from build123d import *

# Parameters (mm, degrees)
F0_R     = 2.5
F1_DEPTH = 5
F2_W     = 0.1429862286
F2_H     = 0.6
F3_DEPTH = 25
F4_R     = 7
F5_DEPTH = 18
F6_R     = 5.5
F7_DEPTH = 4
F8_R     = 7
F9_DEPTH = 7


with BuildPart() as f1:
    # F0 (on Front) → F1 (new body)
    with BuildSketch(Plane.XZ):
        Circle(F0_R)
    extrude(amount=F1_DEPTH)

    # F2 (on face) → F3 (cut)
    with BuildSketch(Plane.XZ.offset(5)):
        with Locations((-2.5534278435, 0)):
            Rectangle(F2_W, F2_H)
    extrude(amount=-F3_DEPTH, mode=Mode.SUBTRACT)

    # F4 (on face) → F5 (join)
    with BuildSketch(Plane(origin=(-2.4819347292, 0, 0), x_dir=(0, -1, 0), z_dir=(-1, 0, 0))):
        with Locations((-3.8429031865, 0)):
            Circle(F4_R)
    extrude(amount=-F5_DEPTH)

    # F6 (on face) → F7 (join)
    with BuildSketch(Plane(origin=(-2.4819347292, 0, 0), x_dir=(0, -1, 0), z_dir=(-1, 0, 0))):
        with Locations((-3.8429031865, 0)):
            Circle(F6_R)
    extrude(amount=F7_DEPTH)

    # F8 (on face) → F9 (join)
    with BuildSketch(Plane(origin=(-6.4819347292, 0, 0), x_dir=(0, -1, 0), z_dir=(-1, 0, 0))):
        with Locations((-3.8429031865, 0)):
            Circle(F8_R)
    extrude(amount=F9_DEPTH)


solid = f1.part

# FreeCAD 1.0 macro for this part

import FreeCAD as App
import Part
import Sketcher

V = App.Vector
Q = App.Units.Quantity

doc = App.newDocument("Part")
body = doc.addObject("PartDesign::Body", "Body")

# Sketch on XZ plane
sketch1 = doc.addObject("Sketcher::SketchObject", "Sketch")
body.addObject(sketch1)
sketch1.AttachmentSupport = (doc.XZ_Plane, [""])
sketch1.MapMode = "FlatFace"
sketch1.addGeometry(Part.Circle(V(0, 0, 0), V(0, 0, 1), 2.5), False)
sketch1.addConstraint([
    Sketcher.Constraint("Coincident", 0, 3, -1, 1),
    Sketcher.Constraint("Diameter", 0, Q("5 mm")),
])
pad1 = doc.addObject("PartDesign::Pad", "Pad")
body.addObject(pad1)
pad1.Profile = sketch1
pad1.Length = 5

# Sketch on XZ plane
sketch2 = doc.addObject("Sketcher::SketchObject", "Sketch001")
body.addObject(sketch2)
sketch2.AttachmentSupport = (doc.XZ_Plane, [""])
sketch2.MapMode = "FlatFace"
sketch2.AttachmentOffset = App.Placement(V(0, 0, 5), App.Rotation())
sketch2.addGeometry([
    Part.LineSegment(V(-2.624921, 0.3, 0), V(-2.624921, -0.3, 0)),
    Part.LineSegment(V(-2.624921, -0.3, 0), V(-2.481935, -0.3, 0)),
    Part.LineSegment(V(-2.481935, -0.3, 0), V(-2.481935, 0.3, 0)),
    Part.LineSegment(V(-2.481935, 0.3, 0), V(-2.624921, 0.3, 0)),
], False)
sketch2.addConstraint([
    Sketcher.Constraint("Coincident", 0, 2, 1, 1),
    Sketcher.Constraint("Coincident", 1, 2, 2, 1),
    Sketcher.Constraint("Coincident", 2, 2, 3, 1),
    Sketcher.Constraint("Coincident", 3, 2, 0, 1),
    Sketcher.Constraint("Vertical", 0),
    Sketcher.Constraint("Horizontal", 1),
    Sketcher.Constraint("Vertical", 2),
    Sketcher.Constraint("Horizontal", 3),
    Sketcher.Constraint("DistanceY", 0, 2, 0, 1, Q("0.6 mm")),
    Sketcher.Constraint("DistanceY", 0, 2, -1, 1, Q("0.3 mm")),
    Sketcher.Constraint("DistanceX", 1, 1, 1, 2, Q("0.142986 mm")),
    Sketcher.Constraint("DistanceX", 0, 2, -1, 1, Q("2.624921 mm")),
])
pocket1 = doc.addObject("PartDesign::Pocket", "Pocket")
body.addObject(pocket1)
pocket1.Profile = sketch2
pocket1.Length = 25

# Sketch on YZ plane
sketch3 = doc.addObject("Sketcher::SketchObject", "Sketch002")
body.addObject(sketch3)
sketch3.AttachmentSupport = (doc.YZ_Plane, [""])
sketch3.MapMode = "FlatFace"
sketch3.AttachmentOffset = App.Placement(V(0, 0, -2.481935), App.Rotation())
sketch3.addGeometry(Part.Circle(V(3.842903, 0, 0), V(0, 0, 1), 7), False)
sketch3.addConstraint([
    Sketcher.Constraint("PointOnObject", 0, 3, -1),
    Sketcher.Constraint("Diameter", 0, Q("14 mm")),
    Sketcher.Constraint("DistanceX", -1, 1, 0, 3, Q("3.842903 mm")),
])
pad2 = doc.addObject("PartDesign::Pad", "Pad001")
body.addObject(pad2)
pad2.Profile = sketch3
pad2.Length = 18

# Sketch on YZ plane
sketch4 = doc.addObject("Sketcher::SketchObject", "Sketch003")
body.addObject(sketch4)
sketch4.AttachmentSupport = (doc.YZ_Plane, [""])
sketch4.MapMode = "FlatFace"
sketch4.AttachmentOffset = App.Placement(V(0, 0, -2.481935), App.Rotation())
sketch4.addGeometry(Part.Circle(V(3.842903, 0, 0), V(0, 0, 1), 5.5), False)
sketch4.addConstraint([
    Sketcher.Constraint("PointOnObject", 0, 3, -1),
    Sketcher.Constraint("Diameter", 0, Q("11 mm")),
    Sketcher.Constraint("DistanceX", -1, 1, 0, 3, Q("3.842903 mm")),
])
pad3 = doc.addObject("PartDesign::Pad", "Pad002")
body.addObject(pad3)
pad3.Profile = sketch4
pad3.Length = 4
pad3.Reversed = True

# Sketch on YZ plane
sketch5 = doc.addObject("Sketcher::SketchObject", "Sketch004")
body.addObject(sketch5)
sketch5.AttachmentSupport = (doc.YZ_Plane, [""])
sketch5.MapMode = "FlatFace"
sketch5.AttachmentOffset = App.Placement(V(0, 0, -6.481935), App.Rotation())
sketch5.addGeometry(Part.Circle(V(3.842903, 0, 0), V(0, 0, 1), 7), False)
sketch5.addConstraint([
    Sketcher.Constraint("PointOnObject", 0, 3, -1),
    Sketcher.Constraint("Diameter", 0, Q("14 mm")),
    Sketcher.Constraint("DistanceX", -1, 1, 0, 3, Q("3.842903 mm")),
])
pad4 = doc.addObject("PartDesign::Pad", "Pad003")
body.addObject(pad4)
pad4.Profile = sketch5
pad4.Length = 7
pad4.Reversed = True

doc.recompute()
